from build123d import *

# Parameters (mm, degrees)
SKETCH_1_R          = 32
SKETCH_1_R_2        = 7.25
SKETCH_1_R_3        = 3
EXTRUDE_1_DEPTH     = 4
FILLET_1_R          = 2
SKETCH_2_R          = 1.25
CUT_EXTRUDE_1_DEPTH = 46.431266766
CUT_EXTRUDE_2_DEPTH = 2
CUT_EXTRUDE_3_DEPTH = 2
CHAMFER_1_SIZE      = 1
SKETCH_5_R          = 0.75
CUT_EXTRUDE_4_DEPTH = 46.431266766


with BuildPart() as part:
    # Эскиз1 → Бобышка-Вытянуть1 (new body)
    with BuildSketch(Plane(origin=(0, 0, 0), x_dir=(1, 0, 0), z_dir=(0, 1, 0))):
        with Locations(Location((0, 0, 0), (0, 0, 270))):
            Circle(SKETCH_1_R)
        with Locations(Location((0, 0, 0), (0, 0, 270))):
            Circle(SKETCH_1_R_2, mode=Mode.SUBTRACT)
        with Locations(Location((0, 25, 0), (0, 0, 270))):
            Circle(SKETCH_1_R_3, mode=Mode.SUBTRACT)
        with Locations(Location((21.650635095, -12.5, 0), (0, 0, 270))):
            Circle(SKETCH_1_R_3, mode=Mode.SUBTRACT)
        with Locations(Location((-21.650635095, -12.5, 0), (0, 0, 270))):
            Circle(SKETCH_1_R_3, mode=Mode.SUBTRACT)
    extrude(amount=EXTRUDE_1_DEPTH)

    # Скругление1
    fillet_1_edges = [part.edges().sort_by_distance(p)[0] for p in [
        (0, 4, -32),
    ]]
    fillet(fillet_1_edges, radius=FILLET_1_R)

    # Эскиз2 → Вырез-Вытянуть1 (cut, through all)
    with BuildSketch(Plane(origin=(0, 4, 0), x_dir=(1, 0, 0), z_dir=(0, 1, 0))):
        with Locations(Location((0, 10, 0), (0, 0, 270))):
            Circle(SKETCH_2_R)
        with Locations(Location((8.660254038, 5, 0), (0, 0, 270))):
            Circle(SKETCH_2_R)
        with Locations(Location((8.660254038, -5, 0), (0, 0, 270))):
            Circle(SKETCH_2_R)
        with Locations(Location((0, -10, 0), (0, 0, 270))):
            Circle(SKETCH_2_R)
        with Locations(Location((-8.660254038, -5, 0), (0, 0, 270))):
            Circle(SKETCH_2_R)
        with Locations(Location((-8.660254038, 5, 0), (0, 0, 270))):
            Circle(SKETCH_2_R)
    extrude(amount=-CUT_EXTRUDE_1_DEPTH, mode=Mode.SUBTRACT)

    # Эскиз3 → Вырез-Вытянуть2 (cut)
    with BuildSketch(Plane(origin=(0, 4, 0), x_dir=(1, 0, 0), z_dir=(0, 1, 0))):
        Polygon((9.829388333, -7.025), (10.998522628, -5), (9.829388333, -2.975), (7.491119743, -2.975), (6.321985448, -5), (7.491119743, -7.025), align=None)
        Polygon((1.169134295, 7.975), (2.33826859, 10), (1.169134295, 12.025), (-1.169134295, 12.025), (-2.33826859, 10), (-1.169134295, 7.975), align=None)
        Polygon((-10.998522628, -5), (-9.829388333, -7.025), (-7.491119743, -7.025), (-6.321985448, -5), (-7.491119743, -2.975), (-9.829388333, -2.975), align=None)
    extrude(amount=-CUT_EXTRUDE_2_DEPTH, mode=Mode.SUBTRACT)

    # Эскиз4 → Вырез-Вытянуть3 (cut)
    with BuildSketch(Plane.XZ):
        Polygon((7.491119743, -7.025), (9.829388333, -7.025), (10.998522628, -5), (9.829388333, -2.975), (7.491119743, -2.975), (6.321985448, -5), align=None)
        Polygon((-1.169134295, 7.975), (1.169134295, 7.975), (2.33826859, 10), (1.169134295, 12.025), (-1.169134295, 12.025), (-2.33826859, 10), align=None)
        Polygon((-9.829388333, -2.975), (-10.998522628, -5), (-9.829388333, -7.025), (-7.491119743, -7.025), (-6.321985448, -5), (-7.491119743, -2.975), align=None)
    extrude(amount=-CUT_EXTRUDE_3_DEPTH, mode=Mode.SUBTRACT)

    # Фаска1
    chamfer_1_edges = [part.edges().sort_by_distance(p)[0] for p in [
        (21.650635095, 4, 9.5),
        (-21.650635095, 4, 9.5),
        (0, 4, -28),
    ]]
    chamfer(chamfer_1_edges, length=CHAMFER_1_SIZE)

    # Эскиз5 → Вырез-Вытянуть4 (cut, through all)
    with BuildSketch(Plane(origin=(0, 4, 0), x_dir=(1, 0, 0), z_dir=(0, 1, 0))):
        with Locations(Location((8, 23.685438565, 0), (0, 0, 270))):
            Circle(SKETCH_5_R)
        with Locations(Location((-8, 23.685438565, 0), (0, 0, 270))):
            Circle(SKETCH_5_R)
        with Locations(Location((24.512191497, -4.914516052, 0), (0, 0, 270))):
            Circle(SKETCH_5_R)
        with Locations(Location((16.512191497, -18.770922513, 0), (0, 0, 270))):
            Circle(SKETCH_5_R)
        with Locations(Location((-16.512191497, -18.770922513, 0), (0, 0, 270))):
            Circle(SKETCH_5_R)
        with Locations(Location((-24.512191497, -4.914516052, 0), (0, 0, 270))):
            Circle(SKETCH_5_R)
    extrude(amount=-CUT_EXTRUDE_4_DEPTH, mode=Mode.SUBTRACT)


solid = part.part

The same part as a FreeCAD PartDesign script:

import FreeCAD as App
import Part
import Sketcher
from FreeCAD import Vector
Q = App.Units.Quantity


def edges_at(feature, points):
    """Names of the edges that pass closest to the given points."""
    edges = feature.Shape.Edges
    near = lambda p: min(range(len(edges)), key=lambda i: edges[i].distToShape(Part.Vertex(*p))[0])
    return sorted({f"Edge{near(p) + 1}" for p in points})

doc = App.newDocument("Part")
body = doc.addObject("PartDesign::Body", "Body")

sketch1 = body.newObject("Sketcher::SketchObject", "Sketch")
sketch1.AttachmentSupport = (doc.getObject("XZ_Plane"), [""])
sketch1.MapMode = "FlatFace"
sketch1.addGeometry(Part.Circle(Vector(0, 0, 0), Vector(0, 0, 1), 32), False)
sketch1.addGeometry(Part.Circle(Vector(0, -25, 0), Vector(0, 0, 1), 3), False)
sketch1.addGeometry(Part.Circle(Vector(-21.650635, 12.5, 0), Vector(0, 0, 1), 3), False)
sketch1.addGeometry(Part.Circle(Vector(0, 0, 0), Vector(0, 0, 1), 7.25), False)
sketch1.addGeometry(Part.Circle(Vector(21.650635, 12.5, 0), Vector(0, 0, 1), 3), False)
sketch1.addConstraint(Sketcher.Constraint("Coincident", 0, 3, -1, 1))
sketch1.addConstraint(Sketcher.Constraint("Coincident", 3, 3, -1, 1))
sketch1.addConstraint(Sketcher.Constraint("Equal", 1, 2))
sketch1.addConstraint(Sketcher.Constraint("Equal", 2, 4))
sketch1.addConstraint(Sketcher.Constraint("Symmetric", 2, 3, 4, 3, -2))
sketch1.addConstraint(Sketcher.Constraint("PointOnObject", 1, 3, -2))
sketch1.addConstraint(Sketcher.Constraint("Diameter", 0, Q("64 mm")))
sketch1.addConstraint(Sketcher.Constraint("Diameter", 1, Q("6 mm")))
sketch1.addConstraint(Sketcher.Constraint("Diameter", 3, Q("14.5 mm")))
sketch1.addConstraint(Sketcher.Constraint("DistanceY", 1, 3, -1, 1, Q("25 mm")))
sketch1.addConstraint(Sketcher.Constraint("DistanceY", -1, 1, 2, 3, Q("12.5 mm")))
sketch1.addConstraint(Sketcher.Constraint("DistanceX", 2, 3, 4, 3, Q("43.30127 mm")))
pad1 = body.newObject("PartDesign::Pad", "Pad")
pad1.Profile = sketch1
pad1.Length = 4
pad1.Reversed = True
doc.recompute()

fillet = body.newObject("PartDesign::Fillet", "Fillet")
fillet.Base = (pad1, edges_at(pad1, [(0, 4, -32)]))
fillet.Radius = 2

sketch2 = body.newObject("Sketcher::SketchObject", "Sketch001")
sketch2.AttachmentSupport = (doc.getObject("XZ_Plane"), [""])
sketch2.MapMode = "FlatFace"
sketch2.AttachmentOffset = App.Placement(Vector(0, 0, -4), App.Rotation())
sketch2.addGeometry(Part.Circle(Vector(0, -10, 0), Vector(0, 0, 1), 1.25), False)
sketch2.addGeometry(Part.Circle(Vector(8.660254, -5, 0), Vector(0, 0, 1), 1.25), False)
sketch2.addGeometry(Part.Circle(Vector(8.660254, 5, 0), Vector(0, 0, 1), 1.25), False)
sketch2.addGeometry(Part.Circle(Vector(0, 10, 0), Vector(0, 0, 1), 1.25), False)
sketch2.addGeometry(Part.Circle(Vector(-8.660254, 5, 0), Vector(0, 0, 1), 1.25), False)
sketch2.addGeometry(Part.Circle(Vector(-8.660254, -5, 0), Vector(0, 0, 1), 1.25), False)
sketch2.addConstraint(Sketcher.Constraint("Equal", 0, 1))
sketch2.addConstraint(Sketcher.Constraint("Equal", 1, 2))
sketch2.addConstraint(Sketcher.Constraint("Equal", 2, 3))
sketch2.addConstraint(Sketcher.Constraint("Equal", 3, 4))
sketch2.addConstraint(Sketcher.Constraint("Equal", 4, 5))
sketch2.addConstraint(Sketcher.Constraint("Symmetric", 0, 3, 3, 3, -1, 1))
sketch2.addConstraint(Sketcher.Constraint("Symmetric", 1, 3, 4, 3, -1, 1))
sketch2.addConstraint(Sketcher.Constraint("Symmetric", 2, 3, 5, 3, -1, 1))
sketch2.addConstraint(Sketcher.Constraint("Symmetric", 2, 3, 4, 3, -2))
sketch2.addConstraint(Sketcher.Constraint("PointOnObject", 0, 3, -2))
sketch2.addConstraint(Sketcher.Constraint("Diameter", 0, Q("2.5 mm")))
sketch2.addConstraint(Sketcher.Constraint("DistanceY", 0, 3, -1, 1, Q("10 mm")))
sketch2.addConstraint(Sketcher.Constraint("DistanceY", 1, 3, -1, 1, Q("5 mm")))
sketch2.addConstraint(Sketcher.Constraint("DistanceX", 4, 3, 2, 3, Q("17.320508 mm")))
pocket1 = body.newObject("PartDesign::Pocket", "Pocket")
pocket1.Profile = sketch2
pocket1.Type = "ThroughAll"
pocket1.Reversed = True

sketch3 = body.newObject("Sketcher::SketchObject", "Sketch002")
sketch3.AttachmentSupport = (doc.getObject("XZ_Plane"), [""])
sketch3.MapMode = "FlatFace"
sketch3.AttachmentOffset = App.Placement(Vector(0, 0, -4), App.Rotation())
sketch3.addGeometry(Part.LineSegment(Vector(9.829388, 7.025, 0), Vector(10.998523, 5, 0)), False)
sketch3.addGeometry(Part.LineSegment(Vector(10.998523, 5, 0), Vector(9.829388, 2.975, 0)), False)
sketch3.addGeometry(Part.LineSegment(Vector(9.829388, 2.975, 0), Vector(7.49112, 2.975, 0)), False)
sketch3.addGeometry(Part.LineSegment(Vector(7.49112, 2.975, 0), Vector(6.321985, 5, 0)), False)
sketch3.addGeometry(Part.LineSegment(Vector(6.321985, 5, 0), Vector(7.49112, 7.025, 0)), False)
sketch3.addGeometry(Part.LineSegment(Vector(7.49112, 7.025, 0), Vector(9.829388, 7.025, 0)), False)
sketch3.addGeometry(Part.LineSegment(Vector(1.169134, -7.975, 0), Vector(2.338269, -10, 0)), False)
sketch3.addGeometry(Part.LineSegment(Vector(2.338269, -10, 0), Vector(1.169134, -12.025, 0)), False)
sketch3.addGeometry(Part.LineSegment(Vector(1.169134, -12.025, 0), Vector(-1.169134, -12.025, 0)), False)
sketch3.addGeometry(Part.LineSegment(Vector(-1.169134, -12.025, 0), Vector(-2.338269, -10, 0)), False)
sketch3.addGeometry(Part.LineSegment(Vector(-2.338269, -10, 0), Vector(-1.169134, -7.975, 0)), False)
sketch3.addGeometry(Part.LineSegment(Vector(-1.169134, -7.975, 0), Vector(1.169134, -7.975, 0)), False)
sketch3.addGeometry(Part.LineSegment(Vector(-10.998523, 5, 0), Vector(-9.829388, 7.025, 0)), False)
sketch3.addGeometry(Part.LineSegment(Vector(-9.829388, 7.025, 0), Vector(-7.49112, 7.025, 0)), False)
sketch3.addGeometry(Part.LineSegment(Vector(-7.49112, 7.025, 0), Vector(-6.321985, 5, 0)), False)
sketch3.addGeometry(Part.LineSegment(Vector(-6.321985, 5, 0), Vector(-7.49112, 2.975, 0)), False)
sketch3.addGeometry(Part.LineSegment(Vector(-7.49112, 2.975, 0), Vector(-9.829388, 2.975, 0)), False)
sketch3.addGeometry(Part.LineSegment(Vector(-9.829388, 2.975, 0), Vector(-10.998523, 5, 0)), False)
sketch3.addConstraint(Sketcher.Constraint("Coincident", 0, 2, 1, 1))
sketch3.addConstraint(Sketcher.Constraint("Coincident", 1, 2, 2, 1))
sketch3.addConstraint(Sketcher.Constraint("Coincident", 2, 2, 3, 1))
sketch3.addConstraint(Sketcher.Constraint("Coincident", 3, 2, 4, 1))
sketch3.addConstraint(Sketcher.Constraint("Coincident", 4, 2, 5, 1))
sketch3.addConstraint(Sketcher.Constraint("Coincident", 5, 2, 0, 1))
sketch3.addConstraint(Sketcher.Constraint("Coincident", 6, 2, 7, 1))
sketch3.addConstraint(Sketcher.Constraint("Coincident", 7, 2, 8, 1))
sketch3.addConstraint(Sketcher.Constraint("Coincident", 8, 2, 9, 1))
sketch3.addConstraint(Sketcher.Constraint("Coincident", 9, 2, 10, 1))
sketch3.addConstraint(Sketcher.Constraint("Coincident", 10, 2, 11, 1))
sketch3.addConstraint(Sketcher.Constraint("Coincident", 11, 2, 6, 1))
sketch3.addConstraint(Sketcher.Constraint("Coincident", 12, 2, 13, 1))
sketch3.addConstraint(Sketcher.Constraint("Coincident", 13, 2, 14, 1))
sketch3.addConstraint(Sketcher.Constraint("Coincident", 14, 2, 15, 1))
sketch3.addConstraint(Sketcher.Constraint("Coincident", 15, 2, 16, 1))
sketch3.addConstraint(Sketcher.Constraint("Coincident", 16, 2, 17, 1))
sketch3.addConstraint(Sketcher.Constraint("Coincident", 17, 2, 12, 1))
sketch3.addConstraint(Sketcher.Constraint("Horizontal", 2))
sketch3.addConstraint(Sketcher.Constraint("Horizontal", 5))
sketch3.addConstraint(Sketcher.Constraint("Horizontal", 8))
sketch3.addConstraint(Sketcher.Constraint("Horizontal", 11))
sketch3.addConstraint(Sketcher.Constraint("Horizontal", 13))
sketch3.addConstraint(Sketcher.Constraint("Horizontal", 16))
sketch3.addConstraint(Sketcher.Constraint("Symmetric", 6, 2, 9, 2, -2))
sketch3.addConstraint(Sketcher.Constraint("Symmetric", 5, 2, 12, 2, -2))
sketch3.addConstraint(Sketcher.Constraint("Symmetric", 3, 2, 14, 2, -2))
sketch3.addConstraint(Sketcher.Constraint("Symmetric", 2, 2, 15, 2, -2))
sketch3.addConstraint(Sketcher.Constraint("Symmetric", 0, 2, 17, 2, -2))
sketch3.addConstraint(Sketcher.Constraint("Parallel", 0, 3))
sketch3.addConstraint(Sketcher.Constraint("Parallel", 1, 4))
sketch3.addConstraint(Sketcher.Constraint("Parallel", 3, 6))
sketch3.addConstraint(Sketcher.Constraint("Parallel", 4, 7))
sketch3.addConstraint(Sketcher.Constraint("Parallel", 6, 9))
sketch3.addConstraint(Sketcher.Constraint("Parallel", 7, 10))
sketch3.addConstraint(Sketcher.Constraint("Parallel", 10, 12))
sketch3.addConstraint(Sketcher.Constraint("Parallel", 9, 14))
sketch3.addConstraint(Sketcher.Constraint("Parallel", 14, 17))
sketch3.addConstraint(Sketcher.Constraint("Horizontal", 0, 2, 3, 2))
sketch3.addConstraint(Sketcher.Constraint("Vertical", 2, 2, 4, 2))
sketch3.addConstraint(Sketcher.Constraint("Vertical", 8, 2, 10, 2))
sketch3.addConstraint(Sketcher.Constraint("Equal", 5, 8))
sketch3.addConstraint(Sketcher.Constraint("Equal", 4, 6))
sketch3.addConstraint(Sketcher.Constraint("Angle", 0, Q("-60 deg")))
sketch3.addConstraint(Sketcher.Constraint("DistanceY", -1, 1, 0, 2, Q("5 mm")))
sketch3.addConstraint(Sketcher.Constraint("DistanceY", 6, 2, -1, 1, Q("10 mm")))
sketch3.addConstraint(Sketcher.Constraint("DistanceY", 2, 2, 4, 2, Q("4.05 mm")))
sketch3.addConstraint(Sketcher.Constraint("DistanceX", 2, 2, 2, 1, Q("2.338269 mm")))
sketch3.addConstraint(Sketcher.Constraint("DistanceX", -1, 1, 1, 2, Q("9.829388 mm")))
pocket2 = body.newObject("PartDesign::Pocket", "Pocket001")
pocket2.Profile = sketch3
pocket2.Length = 2
pocket2.Reversed = True

sketch4 = body.newObject("Sketcher::SketchObject", "Sketch003")
sketch4.AttachmentSupport = (doc.getObject("XZ_Plane"), [""])
sketch4.MapMode = "FlatFace"
sketch4.addGeometry(Part.LineSegment(Vector(7.49112, -7.025, 0), Vector(9.829388, -7.025, 0)), False)
sketch4.addGeometry(Part.LineSegment(Vector(9.829388, -7.025, 0), Vector(10.998523, -5, 0)), False)
sketch4.addGeometry(Part.LineSegment(Vector(10.998523, -5, 0), Vector(9.829388, -2.975, 0)), False)
sketch4.addGeometry(Part.LineSegment(Vector(9.829388, -2.975, 0), Vector(7.49112, -2.975, 0)), False)
sketch4.addGeometry(Part.LineSegment(Vector(7.49112, -2.975, 0), Vector(6.321985, -5, 0)), False)
sketch4.addGeometry(Part.LineSegment(Vector(6.321985, -5, 0), Vector(7.49112, -7.025, 0)), False)
sketch4.addGeometry(Part.LineSegment(Vector(-1.169134, 7.975, 0), Vector(1.169134, 7.975, 0)), False)
sketch4.addGeometry(Part.LineSegment(Vector(1.169134, 7.975, 0), Vector(2.338269, 10, 0)), False)
sketch4.addGeometry(Part.LineSegment(Vector(2.338269, 10, 0), Vector(1.169134, 12.025, 0)), False)
sketch4.addGeometry(Part.LineSegment(Vector(1.169134, 12.025, 0), Vector(-1.169134, 12.025, 0)), False)
sketch4.addGeometry(Part.LineSegment(Vector(-1.169134, 12.025, 0), Vector(-2.338269, 10, 0)), False)
sketch4.addGeometry(Part.LineSegment(Vector(-2.338269, 10, 0), Vector(-1.169134, 7.975, 0)), False)
sketch4.addGeometry(Part.LineSegment(Vector(-9.829388, -2.975, 0), Vector(-10.998523, -5, 0)), False)
sketch4.addGeometry(Part.LineSegment(Vector(-10.998523, -5, 0), Vector(-9.829388, -7.025, 0)), False)
sketch4.addGeometry(Part.LineSegment(Vector(-9.829388, -7.025, 0), Vector(-7.49112, -7.025, 0)), False)
sketch4.addGeometry(Part.LineSegment(Vector(-7.49112, -7.025, 0), Vector(-6.321985, -5, 0)), False)
sketch4.addGeometry(Part.LineSegment(Vector(-6.321985, -5, 0), Vector(-7.49112, -2.975, 0)), False)
sketch4.addGeometry(Part.LineSegment(Vector(-7.49112, -2.975, 0), Vector(-9.829388, -2.975, 0)), False)
sketch4.addConstraint(Sketcher.Constraint("Coincident", 0, 2, 1, 1))
sketch4.addConstraint(Sketcher.Constraint("Coincident", 1, 2, 2, 1))
sketch4.addConstraint(Sketcher.Constraint("Coincident", 2, 2, 3, 1))
sketch4.addConstraint(Sketcher.Constraint("Coincident", 3, 2, 4, 1))
sketch4.addConstraint(Sketcher.Constraint("Coincident", 4, 2, 5, 1))
sketch4.addConstraint(Sketcher.Constraint("Coincident", 5, 2, 0, 1))
sketch4.addConstraint(Sketcher.Constraint("Coincident", 6, 2, 7, 1))
sketch4.addConstraint(Sketcher.Constraint("Coincident", 7, 2, 8, 1))
sketch4.addConstraint(Sketcher.Constraint("Coincident", 8, 2, 9, 1))
sketch4.addConstraint(Sketcher.Constraint("Coincident", 9, 2, 10, 1))
sketch4.addConstraint(Sketcher.Constraint("Coincident", 10, 2, 11, 1))
sketch4.addConstraint(Sketcher.Constraint("Coincident", 11, 2, 6, 1))
sketch4.addConstraint(Sketcher.Constraint("Coincident", 12, 2, 13, 1))
sketch4.addConstraint(Sketcher.Constraint("Coincident", 13, 2, 14, 1))
sketch4.addConstraint(Sketcher.Constraint("Coincident", 14, 2, 15, 1))
sketch4.addConstraint(Sketcher.Constraint("Coincident", 15, 2, 16, 1))
sketch4.addConstraint(Sketcher.Constraint("Coincident", 16, 2, 17, 1))
sketch4.addConstraint(Sketcher.Constraint("Coincident", 17, 2, 12, 1))
sketch4.addConstraint(Sketcher.Constraint("Horizontal", 0))
sketch4.addConstraint(Sketcher.Constraint("Horizontal", 3))
sketch4.addConstraint(Sketcher.Constraint("Horizontal", 6))
sketch4.addConstraint(Sketcher.Constraint("Horizontal", 9))
sketch4.addConstraint(Sketcher.Constraint("Horizontal", 14))
sketch4.addConstraint(Sketcher.Constraint("Horizontal", 17))
sketch4.addConstraint(Sketcher.Constraint("Symmetric", 7, 2, 10, 2, -2))
sketch4.addConstraint(Sketcher.Constraint("Symmetric", 1, 2, 12, 2, -2))
sketch4.addConstraint(Sketcher.Constraint("Symmetric", 0, 2, 13, 2, -2))
sketch4.addConstraint(Sketcher.Constraint("Symmetric", 4, 2, 15, 2, -2))
sketch4.addConstraint(Sketcher.Constraint("Symmetric", 3, 2, 16, 2, -2))
sketch4.addConstraint(Sketcher.Constraint("Parallel", 1, 4))
sketch4.addConstraint(Sketcher.Constraint("Parallel", 2, 5))
sketch4.addConstraint(Sketcher.Constraint("Parallel", 4, 7))
sketch4.addConstraint(Sketcher.Constraint("Parallel", 5, 8))
sketch4.addConstraint(Sketcher.Constraint("Parallel", 7, 10))
sketch4.addConstraint(Sketcher.Constraint("Parallel", 8, 11))
sketch4.addConstraint(Sketcher.Constraint("Parallel", 10, 12))
sketch4.addConstraint(Sketcher.Constraint("Parallel", 11, 13))
sketch4.addConstraint(Sketcher.Constraint("Parallel", 12, 15))
sketch4.addConstraint(Sketcher.Constraint("Horizontal", 1, 2, 4, 2))
sketch4.addConstraint(Sketcher.Constraint("Vertical", 0, 2, 2, 2))
sketch4.addConstraint(Sketcher.Constraint("Vertical", 6, 2, 8, 2))
sketch4.addConstraint(Sketcher.Constraint("Equal", 3, 6))
sketch4.addConstraint(Sketcher.Constraint("Equal", 5, 7))
sketch4.addConstraint(Sketcher.Constraint("Angle", 1, Q("60 deg")))
sketch4.addConstraint(Sketcher.Constraint("DistanceY", 1, 2, -1, 1, Q("5 mm")))
sketch4.addConstraint(Sketcher.Constraint("DistanceY", -1, 1, 7, 2, Q("10 mm")))
sketch4.addConstraint(Sketcher.Constraint("DistanceY", 0, 2, 2, 2, Q("4.05 mm")))
sketch4.addConstraint(Sketcher.Constraint("DistanceX", 0, 1, 0, 2, Q("2.338269 mm")))
sketch4.addConstraint(Sketcher.Constraint("DistanceX", -1, 1, 0, 2, Q("9.829388 mm")))
pocket3 = body.newObject("PartDesign::Pocket", "Pocket002")
pocket3.Profile = sketch4
pocket3.Length = 2
doc.recompute()

chamfer = body.newObject("PartDesign::Chamfer", "Chamfer")
chamfer.Base = (pocket3, edges_at(pocket3, [(21.651, 4, 9.5), (-21.651, 4, 9.5), (0, 4, -28)]))
chamfer.Size = 1

sketch5 = body.newObject("Sketcher::SketchObject", "Sketch004")
sketch5.AttachmentSupport = (doc.getObject("XZ_Plane"), [""])
sketch5.MapMode = "FlatFace"
sketch5.AttachmentOffset = App.Placement(Vector(0, 0, -4), App.Rotation())
sketch5.addGeometry(Part.Circle(Vector(8, -23.685439, 0), Vector(0, 0, 1), 0.75), False)
sketch5.addGeometry(Part.Circle(Vector(-8, -23.685439, 0), Vector(0, 0, 1), 0.75), False)
sketch5.addGeometry(Part.Circle(Vector(24.512191, 4.914516, 0), Vector(0, 0, 1), 0.75), False)
sketch5.addGeometry(Part.Circle(Vector(16.512191, 18.770923, 0), Vector(0, 0, 1), 0.75), False)
sketch5.addGeometry(Part.Circle(Vector(-16.512191, 18.770923, 0), Vector(0, 0, 1), 0.75), False)
sketch5.addGeometry(Part.Circle(Vector(-24.512191, 4.914516, 0), Vector(0, 0, 1), 0.75), False)
sketch5.addConstraint(Sketcher.Constraint("Equal", 0, 1))
sketch5.addConstraint(Sketcher.Constraint("Equal", 1, 2))
sketch5.addConstraint(Sketcher.Constraint("Equal", 2, 3))
sketch5.addConstraint(Sketcher.Constraint("Equal", 3, 4))
sketch5.addConstraint(Sketcher.Constraint("Equal", 4, 5))
sketch5.addConstraint(Sketcher.Constraint("Symmetric", 0, 3, 1, 3, -2))
sketch5.addConstraint(Sketcher.Constraint("Symmetric", 3, 3, 4, 3, -2))
sketch5.addConstraint(Sketcher.Constraint("Symmetric", 2, 3, 5, 3, -2))
sketch5.addConstraint(Sketcher.Constraint("Diameter", 0, Q("1.5 mm")))
sketch5.addConstraint(Sketcher.Constraint("DistanceX", -1, 1, 0, 3, Q("8 mm")))
sketch5.addConstraint(Sketcher.Constraint("DistanceX", 3, 3, 2, 3, Q("8 mm")))
sketch5.addConstraint(Sketcher.Constraint("DistanceY", 0, 3, -1, 1, Q("23.685439 mm")))
sketch5.addConstraint(Sketcher.Constraint("DistanceX", -1, 1, 2, 3, Q("24.512191 mm")))
sketch5.addConstraint(Sketcher.Constraint("DistanceY", 0, 3, 3, 3, Q("42.456361 mm")))
sketch5.addConstraint(Sketcher.Constraint("DistanceY", -1, 1, 2, 3, Q("4.914516 mm")))
pocket4 = body.newObject("PartDesign::Pocket", "Pocket003")
pocket4.Profile = sketch5
pocket4.Type = "ThroughAll"
pocket4.Reversed = True

doc.recompute()
